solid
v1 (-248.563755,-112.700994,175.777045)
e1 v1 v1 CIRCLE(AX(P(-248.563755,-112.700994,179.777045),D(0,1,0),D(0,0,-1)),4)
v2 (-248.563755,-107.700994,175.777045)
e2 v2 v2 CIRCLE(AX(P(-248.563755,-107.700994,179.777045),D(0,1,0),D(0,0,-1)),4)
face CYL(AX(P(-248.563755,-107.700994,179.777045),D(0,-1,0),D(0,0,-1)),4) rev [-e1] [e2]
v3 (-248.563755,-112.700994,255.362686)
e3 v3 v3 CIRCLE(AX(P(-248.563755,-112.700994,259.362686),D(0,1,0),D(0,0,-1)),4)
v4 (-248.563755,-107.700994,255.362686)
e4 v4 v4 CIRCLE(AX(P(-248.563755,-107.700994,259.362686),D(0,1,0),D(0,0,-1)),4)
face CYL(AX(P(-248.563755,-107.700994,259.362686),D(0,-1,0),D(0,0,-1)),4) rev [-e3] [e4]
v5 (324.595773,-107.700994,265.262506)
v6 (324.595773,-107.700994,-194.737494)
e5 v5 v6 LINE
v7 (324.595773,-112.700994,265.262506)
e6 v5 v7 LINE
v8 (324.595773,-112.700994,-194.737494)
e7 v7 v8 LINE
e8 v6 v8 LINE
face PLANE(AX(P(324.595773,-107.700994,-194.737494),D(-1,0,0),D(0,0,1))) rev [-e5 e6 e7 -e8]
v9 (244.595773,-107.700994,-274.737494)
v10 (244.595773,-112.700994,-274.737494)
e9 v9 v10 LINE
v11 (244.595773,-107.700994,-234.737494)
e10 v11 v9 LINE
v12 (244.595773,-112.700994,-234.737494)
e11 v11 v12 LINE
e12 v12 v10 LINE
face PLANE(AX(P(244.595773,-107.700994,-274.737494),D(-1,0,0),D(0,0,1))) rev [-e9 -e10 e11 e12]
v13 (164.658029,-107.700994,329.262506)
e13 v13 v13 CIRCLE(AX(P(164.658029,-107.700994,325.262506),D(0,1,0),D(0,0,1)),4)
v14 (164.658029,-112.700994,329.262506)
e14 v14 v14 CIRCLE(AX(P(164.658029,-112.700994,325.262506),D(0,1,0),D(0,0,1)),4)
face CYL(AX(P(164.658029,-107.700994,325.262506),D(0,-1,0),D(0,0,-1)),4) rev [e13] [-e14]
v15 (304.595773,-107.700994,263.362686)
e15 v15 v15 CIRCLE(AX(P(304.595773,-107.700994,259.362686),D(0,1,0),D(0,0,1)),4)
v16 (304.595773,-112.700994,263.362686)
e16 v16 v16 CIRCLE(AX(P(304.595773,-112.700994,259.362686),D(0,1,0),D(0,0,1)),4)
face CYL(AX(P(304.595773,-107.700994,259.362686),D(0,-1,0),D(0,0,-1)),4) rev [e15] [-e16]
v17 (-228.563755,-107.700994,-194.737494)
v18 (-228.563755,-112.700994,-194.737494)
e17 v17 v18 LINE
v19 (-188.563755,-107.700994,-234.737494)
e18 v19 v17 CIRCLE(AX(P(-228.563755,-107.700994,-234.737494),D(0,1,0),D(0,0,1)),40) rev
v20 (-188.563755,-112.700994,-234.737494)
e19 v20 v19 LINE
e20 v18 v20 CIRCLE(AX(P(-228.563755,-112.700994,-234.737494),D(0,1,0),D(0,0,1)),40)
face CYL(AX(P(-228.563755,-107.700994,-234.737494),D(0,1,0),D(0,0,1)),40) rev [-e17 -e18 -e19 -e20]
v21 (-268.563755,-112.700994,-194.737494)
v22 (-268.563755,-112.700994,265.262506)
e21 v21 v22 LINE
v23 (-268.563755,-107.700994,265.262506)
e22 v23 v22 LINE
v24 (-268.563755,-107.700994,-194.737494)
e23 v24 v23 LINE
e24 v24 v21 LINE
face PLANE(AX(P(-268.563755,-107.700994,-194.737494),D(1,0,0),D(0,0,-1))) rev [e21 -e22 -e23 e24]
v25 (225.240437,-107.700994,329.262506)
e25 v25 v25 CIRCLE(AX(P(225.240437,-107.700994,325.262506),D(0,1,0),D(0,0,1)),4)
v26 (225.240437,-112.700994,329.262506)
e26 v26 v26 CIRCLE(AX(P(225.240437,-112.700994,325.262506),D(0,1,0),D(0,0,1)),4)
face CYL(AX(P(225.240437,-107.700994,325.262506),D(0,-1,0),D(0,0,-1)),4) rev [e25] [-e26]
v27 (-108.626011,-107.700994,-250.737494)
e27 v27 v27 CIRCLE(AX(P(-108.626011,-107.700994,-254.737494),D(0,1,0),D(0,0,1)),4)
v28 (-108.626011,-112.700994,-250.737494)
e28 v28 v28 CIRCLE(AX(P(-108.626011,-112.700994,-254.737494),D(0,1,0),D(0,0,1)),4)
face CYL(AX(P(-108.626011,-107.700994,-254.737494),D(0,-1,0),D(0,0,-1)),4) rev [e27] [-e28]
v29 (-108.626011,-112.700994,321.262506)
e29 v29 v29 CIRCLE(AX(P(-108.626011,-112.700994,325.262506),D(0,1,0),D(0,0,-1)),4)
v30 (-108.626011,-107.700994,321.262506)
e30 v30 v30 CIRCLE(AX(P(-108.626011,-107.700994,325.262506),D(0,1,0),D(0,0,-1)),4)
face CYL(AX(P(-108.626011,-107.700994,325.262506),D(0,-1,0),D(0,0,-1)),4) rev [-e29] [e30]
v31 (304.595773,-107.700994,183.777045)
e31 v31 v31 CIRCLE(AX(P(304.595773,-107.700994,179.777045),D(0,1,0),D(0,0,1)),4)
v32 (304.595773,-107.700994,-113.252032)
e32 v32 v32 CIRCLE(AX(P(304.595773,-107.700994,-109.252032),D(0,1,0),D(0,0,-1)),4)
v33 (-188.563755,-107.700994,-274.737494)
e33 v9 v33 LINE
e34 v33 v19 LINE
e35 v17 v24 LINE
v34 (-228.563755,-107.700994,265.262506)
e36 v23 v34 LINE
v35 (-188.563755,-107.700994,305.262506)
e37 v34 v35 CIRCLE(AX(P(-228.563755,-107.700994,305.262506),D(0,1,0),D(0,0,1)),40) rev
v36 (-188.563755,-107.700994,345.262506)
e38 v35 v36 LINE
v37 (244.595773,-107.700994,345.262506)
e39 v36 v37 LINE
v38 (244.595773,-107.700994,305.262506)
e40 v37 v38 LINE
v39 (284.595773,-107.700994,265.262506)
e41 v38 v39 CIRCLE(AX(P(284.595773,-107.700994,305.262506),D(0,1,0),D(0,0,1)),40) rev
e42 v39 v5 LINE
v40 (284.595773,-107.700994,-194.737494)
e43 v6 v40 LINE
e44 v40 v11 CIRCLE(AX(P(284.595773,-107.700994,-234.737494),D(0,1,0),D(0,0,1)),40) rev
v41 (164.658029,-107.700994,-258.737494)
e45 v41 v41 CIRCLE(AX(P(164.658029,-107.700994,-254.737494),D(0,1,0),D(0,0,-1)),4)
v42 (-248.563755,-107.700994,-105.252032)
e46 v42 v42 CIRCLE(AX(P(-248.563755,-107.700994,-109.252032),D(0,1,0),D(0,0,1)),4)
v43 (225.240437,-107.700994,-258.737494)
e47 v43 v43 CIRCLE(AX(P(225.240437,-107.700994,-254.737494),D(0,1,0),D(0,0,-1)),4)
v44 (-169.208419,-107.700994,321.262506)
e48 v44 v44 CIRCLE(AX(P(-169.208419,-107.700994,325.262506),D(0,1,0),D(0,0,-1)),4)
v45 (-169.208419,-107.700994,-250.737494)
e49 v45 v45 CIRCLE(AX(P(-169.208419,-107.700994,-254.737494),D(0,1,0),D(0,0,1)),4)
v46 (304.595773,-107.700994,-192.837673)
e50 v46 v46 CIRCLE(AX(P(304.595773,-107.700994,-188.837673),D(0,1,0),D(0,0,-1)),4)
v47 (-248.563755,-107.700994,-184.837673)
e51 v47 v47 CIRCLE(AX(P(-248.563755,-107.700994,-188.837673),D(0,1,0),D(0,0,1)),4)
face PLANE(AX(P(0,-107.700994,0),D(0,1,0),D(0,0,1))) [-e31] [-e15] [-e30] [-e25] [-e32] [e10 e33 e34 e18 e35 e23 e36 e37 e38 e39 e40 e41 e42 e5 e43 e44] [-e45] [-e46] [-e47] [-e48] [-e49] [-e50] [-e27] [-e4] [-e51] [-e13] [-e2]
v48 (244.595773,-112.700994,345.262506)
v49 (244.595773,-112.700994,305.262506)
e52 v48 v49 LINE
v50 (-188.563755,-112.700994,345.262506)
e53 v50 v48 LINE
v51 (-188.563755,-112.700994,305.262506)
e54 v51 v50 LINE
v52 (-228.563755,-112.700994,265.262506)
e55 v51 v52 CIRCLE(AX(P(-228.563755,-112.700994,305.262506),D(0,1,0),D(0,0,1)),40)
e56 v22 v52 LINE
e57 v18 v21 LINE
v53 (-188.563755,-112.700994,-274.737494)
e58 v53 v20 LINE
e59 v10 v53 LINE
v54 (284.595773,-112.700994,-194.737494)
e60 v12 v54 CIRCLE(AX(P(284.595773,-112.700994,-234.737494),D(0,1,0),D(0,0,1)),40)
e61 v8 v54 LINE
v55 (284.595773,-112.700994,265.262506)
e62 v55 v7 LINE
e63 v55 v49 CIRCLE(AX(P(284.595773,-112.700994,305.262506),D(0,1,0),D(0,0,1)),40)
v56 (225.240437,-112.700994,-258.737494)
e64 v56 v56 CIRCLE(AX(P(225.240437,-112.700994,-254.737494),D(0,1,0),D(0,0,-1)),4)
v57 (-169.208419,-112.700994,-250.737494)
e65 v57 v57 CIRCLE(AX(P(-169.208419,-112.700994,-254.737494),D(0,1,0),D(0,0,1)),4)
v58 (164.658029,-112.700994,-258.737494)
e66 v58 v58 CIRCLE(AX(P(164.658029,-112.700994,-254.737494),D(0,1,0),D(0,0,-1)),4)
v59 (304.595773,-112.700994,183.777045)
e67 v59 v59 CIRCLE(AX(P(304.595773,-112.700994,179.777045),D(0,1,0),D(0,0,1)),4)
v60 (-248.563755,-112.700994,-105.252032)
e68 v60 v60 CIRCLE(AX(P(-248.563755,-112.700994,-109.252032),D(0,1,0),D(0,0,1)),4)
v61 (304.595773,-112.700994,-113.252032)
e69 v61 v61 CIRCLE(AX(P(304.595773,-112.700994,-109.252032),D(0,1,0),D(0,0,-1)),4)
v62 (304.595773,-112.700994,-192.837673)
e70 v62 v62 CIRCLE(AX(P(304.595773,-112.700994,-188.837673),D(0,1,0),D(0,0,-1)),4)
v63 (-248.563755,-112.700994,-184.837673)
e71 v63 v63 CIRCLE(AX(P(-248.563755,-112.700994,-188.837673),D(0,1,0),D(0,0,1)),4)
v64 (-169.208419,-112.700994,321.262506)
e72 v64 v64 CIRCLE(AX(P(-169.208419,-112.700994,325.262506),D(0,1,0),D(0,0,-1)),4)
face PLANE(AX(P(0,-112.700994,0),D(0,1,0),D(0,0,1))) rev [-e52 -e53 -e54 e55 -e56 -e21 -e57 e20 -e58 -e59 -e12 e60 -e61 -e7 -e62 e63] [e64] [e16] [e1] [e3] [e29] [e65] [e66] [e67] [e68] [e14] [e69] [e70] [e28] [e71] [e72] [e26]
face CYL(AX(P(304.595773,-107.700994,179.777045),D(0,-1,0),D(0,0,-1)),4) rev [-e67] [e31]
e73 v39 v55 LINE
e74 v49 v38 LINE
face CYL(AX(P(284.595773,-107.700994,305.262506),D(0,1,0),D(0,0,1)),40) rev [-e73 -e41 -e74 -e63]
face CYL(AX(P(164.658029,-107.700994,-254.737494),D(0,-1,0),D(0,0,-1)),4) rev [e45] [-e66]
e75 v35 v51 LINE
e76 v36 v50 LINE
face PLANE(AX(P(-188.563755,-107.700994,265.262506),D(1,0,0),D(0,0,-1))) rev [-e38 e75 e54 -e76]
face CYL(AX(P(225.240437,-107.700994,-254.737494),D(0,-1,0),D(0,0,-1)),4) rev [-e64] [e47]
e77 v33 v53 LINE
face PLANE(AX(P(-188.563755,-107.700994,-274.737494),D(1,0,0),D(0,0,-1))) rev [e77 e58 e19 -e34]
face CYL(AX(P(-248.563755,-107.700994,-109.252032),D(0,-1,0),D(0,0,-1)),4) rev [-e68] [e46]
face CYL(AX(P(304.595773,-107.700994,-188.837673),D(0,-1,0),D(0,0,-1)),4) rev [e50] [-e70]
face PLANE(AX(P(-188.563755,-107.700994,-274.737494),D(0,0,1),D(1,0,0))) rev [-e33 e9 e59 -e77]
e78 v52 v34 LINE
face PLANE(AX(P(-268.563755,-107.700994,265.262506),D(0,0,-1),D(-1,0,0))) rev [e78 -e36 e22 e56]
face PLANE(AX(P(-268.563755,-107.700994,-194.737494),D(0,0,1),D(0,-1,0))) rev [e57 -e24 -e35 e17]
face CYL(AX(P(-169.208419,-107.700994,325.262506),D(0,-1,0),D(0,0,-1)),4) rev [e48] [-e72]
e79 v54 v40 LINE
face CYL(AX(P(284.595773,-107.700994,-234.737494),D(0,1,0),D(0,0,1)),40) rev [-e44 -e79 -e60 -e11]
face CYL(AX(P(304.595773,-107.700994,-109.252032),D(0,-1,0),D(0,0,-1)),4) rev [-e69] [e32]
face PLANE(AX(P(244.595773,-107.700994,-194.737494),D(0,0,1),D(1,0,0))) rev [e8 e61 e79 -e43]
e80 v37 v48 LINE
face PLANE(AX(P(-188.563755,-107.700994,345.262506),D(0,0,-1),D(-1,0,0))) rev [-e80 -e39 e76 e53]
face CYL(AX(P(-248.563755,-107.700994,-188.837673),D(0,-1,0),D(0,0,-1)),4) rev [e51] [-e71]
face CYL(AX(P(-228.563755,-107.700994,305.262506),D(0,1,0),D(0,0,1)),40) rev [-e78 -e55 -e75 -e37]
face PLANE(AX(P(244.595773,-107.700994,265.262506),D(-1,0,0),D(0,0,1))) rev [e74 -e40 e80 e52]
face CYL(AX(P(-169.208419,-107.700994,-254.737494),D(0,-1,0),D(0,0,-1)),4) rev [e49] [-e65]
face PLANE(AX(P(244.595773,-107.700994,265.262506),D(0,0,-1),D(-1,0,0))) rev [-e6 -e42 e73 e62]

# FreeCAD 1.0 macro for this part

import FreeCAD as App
import Part
import Sketcher
Q = App.Units.Quantity


def edges_at(feature, points):
    """Names of the edges that pass closest to the given points."""
    edges = feature.Shape.Edges
    near = lambda p: min(range(len(edges)), key=lambda i: edges[i].distToShape(Part.Vertex(*p))[0])
    return sorted({f"Edge{near(p) + 1}" for p in points})

doc = App.newDocument("Part")
params = doc.addObject("Spreadsheet::Sheet", "Params")
for row, (alias, value) in enumerate([
    ("sketch1_diameter", "8 mm"),
    ("sketch1_width", "80 mm"),
    ("sketch1_height", "460 mm"),
    ("pad1_length", "5 mm"),
    ("fillet_radius", "40 mm"),
], start=1):
    params.set(f"A{row}", alias)
    params.set(f"B{row}", "=" + value)
    params.setAlias(f"B{row}", alias)

body = doc.addObject("PartDesign::Body", "Body")

# Sketch on XZ plane
sketch1 = body.newObject("Sketcher::SketchObject", "Sketch")
sketch1.AttachmentSupport = (doc.getObject("XZ_Plane"), [""])
sketch1.MapMode = "FlatFace"
sketch1.AttachmentOffset = App.Placement(App.Vector(0, 0, 112.700994), App.Rotation())
sketch1.addGeometry([
    Part.LineSegment(App.Vector(244.6, -274.7, 0), App.Vector(-188.6, -274.7, 0)),  # 0
    Part.LineSegment(App.Vector(-188.6, -274.7, 0), App.Vector(-188.6, -194.7, 0)),  # 1
    Part.LineSegment(App.Vector(-188.6, -194.7, 0), App.Vector(-268.6, -194.7, 0)),  # 2
    Part.LineSegment(App.Vector(-268.6, -194.7, 0), App.Vector(-268.6, 265.3, 0)),  # 3
    Part.LineSegment(App.Vector(-268.6, 265.3, 0), App.Vector(-188.6, 265.3, 0)),  # 4
    Part.LineSegment(App.Vector(-188.6, 265.3, 0), App.Vector(-188.6, 345.3, 0)),  # 5
    Part.LineSegment(App.Vector(-188.6, 345.3, 0), App.Vector(244.6, 345.3, 0)),  # 6
    Part.LineSegment(App.Vector(244.6, 345.3, 0), App.Vector(244.6, 265.3, 0)),  # 7
    Part.LineSegment(App.Vector(244.6, 265.3, 0), App.Vector(324.6, 265.3, 0)),  # 8
    Part.LineSegment(App.Vector(324.6, 265.3, 0), App.Vector(324.6, -194.7, 0)),  # 9
    Part.LineSegment(App.Vector(324.6, -194.7, 0), App.Vector(244.6, -194.7, 0)),  # 10
    Part.LineSegment(App.Vector(244.6, -194.7, 0), App.Vector(244.6, -274.7, 0)),  # 11
    Part.Circle(App.Vector(304.6, 259.4, 0), App.Vector(0, 0, 1), 4),  # 12
    Part.Circle(App.Vector(225.2, 325.3, 0), App.Vector(0, 0, 1), 4),  # 13
    Part.Circle(App.Vector(164.7, 325.3, 0), App.Vector(0, 0, 1), 4),  # 14
    Part.Circle(App.Vector(304.6, 179.8, 0), App.Vector(0, 0, 1), 4),  # 15
    Part.Circle(App.Vector(-108.6, 325.3, 0), App.Vector(0, 0, 1), 4),  # 16
    Part.Circle(App.Vector(-169.2, 325.3, 0), App.Vector(0, 0, 1), 4),  # 17
    Part.Circle(App.Vector(-248.6, 259.4, 0), App.Vector(0, 0, 1), 4),  # 18
    Part.Circle(App.Vector(-248.6, 179.8, 0), App.Vector(0, 0, 1), 4),  # 19
    Part.Circle(App.Vector(304.6, -109.3, 0), App.Vector(0, 0, 1), 4),  # 20
    Part.Circle(App.Vector(304.6, -188.8, 0), App.Vector(0, 0, 1), 4),  # 21
    Part.Circle(App.Vector(225.2, -254.7, 0), App.Vector(0, 0, 1), 4),  # 22
    Part.Circle(App.Vector(164.7, -254.7, 0), App.Vector(0, 0, 1), 4),  # 23
    Part.Circle(App.Vector(-248.6, -109.3, 0), App.Vector(0, 0, 1), 4),  # 24
    Part.Circle(App.Vector(-108.6, -254.7, 0), App.Vector(0, 0, 1), 4),  # 25
    Part.Circle(App.Vector(-169.2, -254.7, 0), App.Vector(0, 0, 1), 4),  # 26
    Part.Circle(App.Vector(-248.6, -188.8, 0), App.Vector(0, 0, 1), 4),  # 27
], False)
sketch1.addConstraint([
    Sketcher.Constraint("Coincident", 0, 2, 1, 1),
    Sketcher.Constraint("Coincident", 1, 2, 2, 1),
    Sketcher.Constraint("Coincident", 2, 2, 3, 1),
    Sketcher.Constraint("Coincident", 3, 2, 4, 1),
    Sketcher.Constraint("Coincident", 4, 2, 5, 1),
    Sketcher.Constraint("Coincident", 5, 2, 6, 1),
    Sketcher.Constraint("Coincident", 6, 2, 7, 1),
    Sketcher.Constraint("Coincident", 7, 2, 8, 1),
    Sketcher.Constraint("Coincident", 8, 2, 9, 1),
    Sketcher.Constraint("Coincident", 9, 2, 10, 1),
    Sketcher.Constraint("Coincident", 10, 2, 11, 1),
    Sketcher.Constraint("Coincident", 11, 2, 0, 1),
    Sketcher.Constraint("Horizontal", 0),
    Sketcher.Constraint("Vertical", 1),
    Sketcher.Constraint("Horizontal", 2),
    Sketcher.Constraint("Vertical", 3),
    Sketcher.Constraint("Horizontal", 4),
    Sketcher.Constraint("Vertical", 5),
    Sketcher.Constraint("Horizontal", 6),
    Sketcher.Constraint("Vertical", 7),
    Sketcher.Constraint("Horizontal", 8),
    Sketcher.Constraint("Vertical", 9),
    Sketcher.Constraint("Horizontal", 10),
    Sketcher.Constraint("Vertical", 11),
    Sketcher.Constraint("Equal", 12, 13),
    Sketcher.Constraint("Equal", 13, 14),
    Sketcher.Constraint("Equal", 14, 15),
    Sketcher.Constraint("Equal", 15, 16),
    Sketcher.Constraint("Equal", 16, 17),
    Sketcher.Constraint("Equal", 17, 18),
    Sketcher.Constraint("Equal", 18, 19),
    Sketcher.Constraint("Equal", 19, 20),
    Sketcher.Constraint("Equal", 20, 21),
    Sketcher.Constraint("Equal", 21, 22),
    Sketcher.Constraint("Equal", 22, 23),
    Sketcher.Constraint("Equal", 23, 24),
    Sketcher.Constraint("Equal", 24, 25),
    Sketcher.Constraint("Equal", 25, 26),
    Sketcher.Constraint("Equal", 26, 27),
    Sketcher.Constraint("Horizontal", 13, 3, 14, 3),
    Sketcher.Constraint("Horizontal", 14, 3, 16, 3),
    Sketcher.Constraint("Horizontal", 16, 3, 17, 3),
    Sketcher.Constraint("Horizontal", 12, 3, 18, 3),
    Sketcher.Constraint("Horizontal", 15, 3, 19, 3),
    Sketcher.Constraint("Horizontal", 22, 3, 23, 3),
    Sketcher.Constraint("Horizontal", 20, 3, 24, 3),
    Sketcher.Constraint("Horizontal", 23, 3, 25, 3),
    Sketcher.Constraint("Horizontal", 25, 3, 26, 3),
    Sketcher.Constraint("Horizontal", 21, 3, 27, 3),
    Sketcher.Constraint("Horizontal", 4, 2, 7, 2),
    Sketcher.Constraint("Horizontal", 2, 2, 9, 2),
    Sketcher.Constraint("Vertical", 12, 3, 15, 3),
    Sketcher.Constraint("Vertical", 18, 3, 19, 3),
    Sketcher.Constraint("Vertical", 15, 3, 20, 3),
    Sketcher.Constraint("Vertical", 20, 3, 21, 3),
    Sketcher.Constraint("Vertical", 13, 3, 22, 3),
    Sketcher.Constraint("Vertical", 14, 3, 23, 3),
    Sketcher.Constraint("Vertical", 19, 3, 24, 3),
    Sketcher.Constraint("Vertical", 16, 3, 25, 3),
    Sketcher.Constraint("Vertical", 17, 3, 26, 3),
    Sketcher.Constraint("Vertical", 24, 3, 27, 3),
    Sketcher.Constraint("Vertical", 1, 2, 4, 2),
    Sketcher.Constraint("Vertical", 7, 2, 10, 2),
    Sketcher.Constraint("Equal", 4, 8),
    Sketcher.Constraint("Equal", 10, 1),
    Sketcher.Constraint("Equal", 1, 5),
    Sketcher.Constraint("Diameter", 12, Q("8 mm")),
    Sketcher.Constraint("DistanceX", 2, 2, 2, 1, Q("80 mm")),
    Sketcher.Constraint("DistanceY", 3, 1, 3, 2, Q("460 mm")),
    Sketcher.Constraint("DistanceY", 22, 3, 13, 3, Q("580 mm")),
    Sketcher.Constraint("DistanceY", 0, 2, 26, 3, Q("20 mm")),
    Sketcher.Constraint("DistanceX", 27, 3, 0, 2, Q("60 mm")),
    Sketcher.Constraint("DistanceX", 6, 2, 12, 3, Q("60 mm")),
    Sketcher.Constraint("DistanceX", 0, 2, 0, 1, Q("433.159528 mm")),
    Sketcher.Constraint("DistanceX", -1, 1, 14, 3, Q("164.658029 mm")),
    Sketcher.Constraint("DistanceX", 16, 3, -1, 1, Q("108.626011 mm")),
    Sketcher.Constraint("DistanceX", 17, 3, -1, 1, Q("169.208419 mm")),
    Sketcher.Constraint("DistanceY", 20, 3, -1, 1, Q("109.252032 mm")),
    Sketcher.Constraint("DistanceY", 12, 3, 13, 3, Q("65.89982 mm")),
    Sketcher.Constraint("DistanceY", 15, 3, 12, 3, Q("79.585641 mm")),
    Sketcher.Constraint("DistanceX", 17, 3, 12, 3, Q("473.804192 mm")),
    Sketcher.Constraint("DistanceX", 18, 3, 13, 3, Q("473.804192 mm")),
    Sketcher.Constraint("DistanceY", 20, 3, 13, 3, Q("434.514538 mm")),
    Sketcher.Constraint("DistanceY", 21, 3, 20, 3, Q("79.585641 mm")),
])
sketch1.setExpression("Constraints[66]", "Params.sketch1_diameter")
sketch1.setExpression("Constraints[67]", "Params.sketch1_width")
sketch1.setExpression("Constraints[68]", "Params.sketch1_height")
pad1 = body.newObject("PartDesign::Pad", "Pad")
pad1.Profile = sketch1
pad1.setExpression("Length", "Params.pad1_length")
pad1.Reversed = True
doc.recompute()

fillet = body.newObject("PartDesign::Fillet", "Fillet")
fillet.Base = (pad1, edges_at(pad1, [
    (244.596, -110.201, -194.737),
    (244.596, -110.201, 265.263),
    (-188.564, -110.201, 265.263),
    (-188.564, -110.201, -194.737),
]))
fillet.setExpression("Radius", "Params.fillet_radius")

doc.recompute()
